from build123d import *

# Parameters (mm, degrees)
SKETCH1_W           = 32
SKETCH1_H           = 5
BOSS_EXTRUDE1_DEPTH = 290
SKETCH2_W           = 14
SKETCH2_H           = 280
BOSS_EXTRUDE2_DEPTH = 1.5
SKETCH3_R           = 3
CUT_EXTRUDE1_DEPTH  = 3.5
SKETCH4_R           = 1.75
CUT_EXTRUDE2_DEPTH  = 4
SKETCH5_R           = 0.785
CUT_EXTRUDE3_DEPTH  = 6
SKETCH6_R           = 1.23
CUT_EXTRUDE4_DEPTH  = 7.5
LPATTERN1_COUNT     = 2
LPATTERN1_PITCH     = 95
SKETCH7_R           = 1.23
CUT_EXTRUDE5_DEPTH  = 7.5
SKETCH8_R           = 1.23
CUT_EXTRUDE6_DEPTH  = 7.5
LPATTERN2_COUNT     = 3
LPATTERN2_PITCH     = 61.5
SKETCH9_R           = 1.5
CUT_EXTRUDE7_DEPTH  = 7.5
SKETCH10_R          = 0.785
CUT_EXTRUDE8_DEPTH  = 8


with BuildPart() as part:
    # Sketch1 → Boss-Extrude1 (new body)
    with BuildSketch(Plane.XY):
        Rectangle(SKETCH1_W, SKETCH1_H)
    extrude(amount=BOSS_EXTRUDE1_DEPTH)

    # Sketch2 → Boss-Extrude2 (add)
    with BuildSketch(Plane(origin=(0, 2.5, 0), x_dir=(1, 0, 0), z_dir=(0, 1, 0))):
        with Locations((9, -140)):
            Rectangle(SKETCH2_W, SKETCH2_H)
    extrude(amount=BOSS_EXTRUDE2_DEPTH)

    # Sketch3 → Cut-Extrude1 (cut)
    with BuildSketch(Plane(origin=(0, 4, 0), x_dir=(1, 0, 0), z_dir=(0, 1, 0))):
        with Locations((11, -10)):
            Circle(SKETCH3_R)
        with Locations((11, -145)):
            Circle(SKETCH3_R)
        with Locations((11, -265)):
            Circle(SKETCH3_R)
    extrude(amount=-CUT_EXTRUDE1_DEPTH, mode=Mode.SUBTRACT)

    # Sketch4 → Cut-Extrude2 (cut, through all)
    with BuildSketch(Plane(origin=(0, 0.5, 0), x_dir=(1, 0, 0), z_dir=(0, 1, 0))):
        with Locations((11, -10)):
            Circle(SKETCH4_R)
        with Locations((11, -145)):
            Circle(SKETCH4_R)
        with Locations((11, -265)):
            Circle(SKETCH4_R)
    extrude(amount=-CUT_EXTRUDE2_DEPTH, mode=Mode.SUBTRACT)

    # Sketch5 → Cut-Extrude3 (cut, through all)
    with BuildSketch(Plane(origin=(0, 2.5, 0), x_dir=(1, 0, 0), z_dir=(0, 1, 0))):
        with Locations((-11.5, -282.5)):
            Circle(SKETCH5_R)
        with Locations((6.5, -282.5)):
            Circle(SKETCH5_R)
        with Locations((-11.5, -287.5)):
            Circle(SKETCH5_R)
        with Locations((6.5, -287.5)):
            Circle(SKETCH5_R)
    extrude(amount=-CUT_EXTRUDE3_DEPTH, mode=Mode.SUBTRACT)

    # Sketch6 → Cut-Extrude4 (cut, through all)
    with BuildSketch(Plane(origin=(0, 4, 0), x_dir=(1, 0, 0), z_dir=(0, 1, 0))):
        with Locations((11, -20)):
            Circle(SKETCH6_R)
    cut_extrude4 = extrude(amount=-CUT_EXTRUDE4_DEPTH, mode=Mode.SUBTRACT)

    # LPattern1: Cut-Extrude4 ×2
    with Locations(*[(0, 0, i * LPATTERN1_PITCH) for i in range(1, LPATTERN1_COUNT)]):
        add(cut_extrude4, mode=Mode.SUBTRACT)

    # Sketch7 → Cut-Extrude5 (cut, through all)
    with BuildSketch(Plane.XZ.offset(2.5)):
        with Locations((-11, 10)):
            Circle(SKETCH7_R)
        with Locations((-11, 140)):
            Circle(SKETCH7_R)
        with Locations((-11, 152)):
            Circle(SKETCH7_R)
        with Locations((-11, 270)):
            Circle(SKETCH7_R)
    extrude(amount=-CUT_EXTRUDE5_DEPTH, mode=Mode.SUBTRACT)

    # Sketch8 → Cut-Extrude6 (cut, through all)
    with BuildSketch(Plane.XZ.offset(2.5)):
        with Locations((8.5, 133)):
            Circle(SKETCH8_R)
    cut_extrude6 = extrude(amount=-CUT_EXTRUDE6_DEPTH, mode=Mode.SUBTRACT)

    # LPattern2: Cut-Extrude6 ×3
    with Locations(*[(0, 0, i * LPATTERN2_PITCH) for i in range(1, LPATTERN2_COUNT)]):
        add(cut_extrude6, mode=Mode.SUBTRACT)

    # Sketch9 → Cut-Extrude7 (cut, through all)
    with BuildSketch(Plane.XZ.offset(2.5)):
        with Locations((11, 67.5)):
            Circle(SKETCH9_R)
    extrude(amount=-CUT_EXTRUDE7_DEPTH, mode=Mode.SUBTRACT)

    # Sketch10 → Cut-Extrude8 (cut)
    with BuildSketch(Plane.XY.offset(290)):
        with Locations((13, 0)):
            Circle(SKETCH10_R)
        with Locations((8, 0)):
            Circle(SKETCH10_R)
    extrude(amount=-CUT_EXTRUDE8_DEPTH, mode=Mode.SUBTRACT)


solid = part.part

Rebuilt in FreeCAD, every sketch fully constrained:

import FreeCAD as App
import Part
import Sketcher

V = App.Vector


def add_polygon(sketch, points):
    """Adds a closed chain of lines whose ends are joined by coincident constraints."""
    first, n = sketch.GeometryCount, len(points)
    for a, b in zip(points, points[1:] + points[:1]):
        sketch.addGeometry(Part.LineSegment(App.Vector(*a, 0), App.Vector(*b, 0)), False)
    for i in range(n):
        sketch.addConstraint(Sketcher.Constraint("Coincident", first + i, 2, first + (i + 1) % n, 1))

doc = App.newDocument("Part")
body = doc.addObject("PartDesign::Body", "Body")

sketch1 = body.newObject("Sketcher::SketchObject", "Sketch")
sketch1.AttachmentSupport = (doc.getObject("XY_Plane"), [""])
sketch1.MapMode = "FlatFace"
add_polygon(sketch1, [(-16, 2), (-16, -2), (16, -2), (16, 2)])
sketch1.addConstraint([
    Sketcher.Constraint("Vertical", 0),
    Sketcher.Constraint("Horizontal", 1),
    Sketcher.Constraint("Vertical", 2),
    Sketcher.Constraint("Horizontal", 3),
    Sketcher.Constraint("Symmetric", 0, 2, 2, 2, -1, 1),
    Sketcher.Constraint("DistanceX", 1, 1, 1, 2, 32.0),
    Sketcher.Constraint("DistanceY", 0, 2, 0, 1, 5.0),
])
pad1 = body.newObject("PartDesign::Pad", "Pad")
pad1.Profile = sketch1
pad1.Length = 290

sketch2 = body.newObject("Sketcher::SketchObject", "Sketch001")
sketch2.AttachmentSupport = (doc.getObject("XZ_Plane"), [""])
sketch2.MapMode = "FlatFace"
sketch2.AttachmentOffset = App.Placement(V(0, 0, -2.5), App.Rotation())
add_polygon(sketch2, [(2, 0), (2, 280), (16, 280), (16, 0)])
sketch2.addConstraint([
    Sketcher.Constraint("Vertical", 0),
    Sketcher.Constraint("Horizontal", 1),
    Sketcher.Constraint("Vertical", 2),
    Sketcher.Constraint("Horizontal", 3),
    Sketcher.Constraint("PointOnObject", 2, 2, -1),
    Sketcher.Constraint("DistanceX", 1, 1, 1, 2, 14.0),
    Sketcher.Constraint("DistanceY", 0, 1, 0, 2, 280.0),
    Sketcher.Constraint("DistanceX", -1, 1, 0, 2, 2.0),
])
pad2 = body.newObject("PartDesign::Pad", "Pad001")
pad2.Profile = sketch2
pad2.Length = 1.5
pad2.Reversed = True

sketch3 = body.newObject("Sketcher::SketchObject", "Sketch002")
sketch3.AttachmentSupport = (doc.getObject("XZ_Plane"), [""])
sketch3.MapMode = "FlatFace"
sketch3.AttachmentOffset = App.Placement(V(0, 0, -4), App.Rotation())
sketch3.addGeometry([
    Part.Circle(V(11, 10, 0), V(0, 0, 1), 3),
    Part.Circle(V(11, 145, 0), V(0, 0, 1), 3),
    Part.Circle(V(11, 265, 0), V(0, 0, 1), 3),
], False)
sketch3.addConstraint([
    Sketcher.Constraint("Equal", 0, 1),
    Sketcher.Constraint("Equal", 1, 2),
    Sketcher.Constraint("Vertical", 0, 3, 1, 3),
    Sketcher.Constraint("Vertical", 1, 3, 2, 3),
    Sketcher.Constraint("Diameter", 0, 6.0),
    Sketcher.Constraint("DistanceX", -1, 1, 0, 3, 11.0),
    Sketcher.Constraint("DistanceY", -1, 1, 0, 3, 10.0),
    Sketcher.Constraint("DistanceY", -1, 1, 1, 3, 145.0),
    Sketcher.Constraint("DistanceY", -1, 1, 2, 3, 265.0),
])
pocket1 = body.newObject("PartDesign::Pocket", "Pocket")
pocket1.Profile = sketch3
pocket1.Length = 3.5
pocket1.Reversed = True

sketch4 = body.newObject("Sketcher::SketchObject", "Sketch003")
sketch4.AttachmentSupport = (doc.getObject("XZ_Plane"), [""])
sketch4.MapMode = "FlatFace"
sketch4.AttachmentOffset = App.Placement(V(0, 0, -0.5), App.Rotation())
sketch4.addGeometry([
    Part.Circle(V(11, 10, 0), V(0, 0, 1), 1.8),
    Part.Circle(V(11, 145, 0), V(0, 0, 1), 1.8),
    Part.Circle(V(11, 265, 0), V(0, 0, 1), 1.8),
], False)
sketch4.addConstraint([
    Sketcher.Constraint("Equal", 0, 1),
    Sketcher.Constraint("Equal", 1, 2),
    Sketcher.Constraint("Vertical", 0, 3, 1, 3),
    Sketcher.Constraint("Vertical", 1, 3, 2, 3),
    Sketcher.Constraint("Diameter", 0, 3.5),
    Sketcher.Constraint("DistanceX", -1, 1, 0, 3, 11.0),
    Sketcher.Constraint("DistanceY", -1, 1, 0, 3, 10.0),
    Sketcher.Constraint("DistanceY", -1, 1, 1, 3, 145.0),
    Sketcher.Constraint("DistanceY", -1, 1, 2, 3, 265.0),
])
pocket2 = body.newObject("PartDesign::Pocket", "Pocket001")
pocket2.Profile = sketch4
pocket2.Type = "ThroughAll"
pocket2.Reversed = True

sketch5 = body.newObject("Sketcher::SketchObject", "Sketch004")
sketch5.AttachmentSupport = (doc.getObject("XZ_Plane"), [""])
sketch5.MapMode = "FlatFace"
sketch5.AttachmentOffset = App.Placement(V(0, 0, -2.5), App.Rotation())
sketch5.addGeometry([
    Part.Circle(V(-11.5, 282.5, 0), V(0, 0, 1), 0.8),
    Part.Circle(V(6.5, 282.5, 0), V(0, 0, 1), 0.8),
    Part.Circle(V(-11.5, 287.5, 0), V(0, 0, 1), 0.8),
    Part.Circle(V(6.5, 287.5, 0), V(0, 0, 1), 0.8),
], False)
sketch5.addConstraint([
    Sketcher.Constraint("Equal", 0, 1),
    Sketcher.Constraint("Equal", 1, 2),
    Sketcher.Constraint("Equal", 2, 3),
    Sketcher.Constraint("Horizontal", 0, 3, 1, 3),
    Sketcher.Constraint("Horizontal", 2, 3, 3, 3),
    Sketcher.Constraint("Vertical", 0, 3, 2, 3),
    Sketcher.Constraint("Vertical", 1, 3, 3, 3),
    Sketcher.Constraint("Diameter", 0, 1.57),
    Sketcher.Constraint("DistanceX", 0, 3, 1, 3, 18.0),
    Sketcher.Constraint("DistanceY", 0, 3, 2, 3, 5.0),
    Sketcher.Constraint("DistanceX", 0, 3, -1, 1, 11.5),
    Sketcher.Constraint("DistanceY", -1, 1, 0, 3, 282.5),
])
pocket3 = body.newObject("PartDesign::Pocket", "Pocket002")
pocket3.Profile = sketch5
pocket3.Type = "ThroughAll"
pocket3.Reversed = True

sketch6 = body.newObject("Sketcher::SketchObject", "Sketch005")
sketch6.AttachmentSupport = (doc.getObject("XZ_Plane"), [""])
sketch6.MapMode = "FlatFace"
sketch6.AttachmentOffset = App.Placement(V(0, 0, -4), App.Rotation())
sketch6.addGeometry(Part.Circle(V(11, 20, 0), V(0, 0, 1), 1.2), False)
sketch6.addConstraint([
    Sketcher.Constraint("Diameter", 0, 2.46),
    Sketcher.Constraint("DistanceX", -1, 1, 0, 3, 11.0),
    Sketcher.Constraint("DistanceY", -1, 1, 0, 3, 20.0),
])
pocket4 = body.newObject("PartDesign::Pocket", "Pocket003")
pocket4.Profile = sketch6
pocket4.Type = "ThroughAll"
pocket4.Reversed = True
doc.recompute()

linearpattern = body.newObject("PartDesign::LinearPattern", "LinearPattern")
linearpattern.Originals = [pocket4]
linearpattern.Direction = (doc.getObject("Z_Axis"), [""])
linearpattern.Mode = "offset"
linearpattern.Offset = 95
linearpattern.Occurrences = 2
body.Tip = linearpattern

sketch7 = body.newObject("Sketcher::SketchObject", "Sketch006")
sketch7.AttachmentSupport = (doc.getObject("XZ_Plane"), [""])
sketch7.MapMode = "FlatFace"
sketch7.AttachmentOffset = App.Placement(V(0, 0, 2.5), App.Rotation())
sketch7.addGeometry([
    Part.Circle(V(-11, 10, 0), V(0, 0, 1), 1.2),
    Part.Circle(V(-11, 140, 0), V(0, 0, 1), 1.2),
    Part.Circle(V(-11, 152, 0), V(0, 0, 1), 1.2),
    Part.Circle(V(-11, 270, 0), V(0, 0, 1), 1.2),
], False)
sketch7.addConstraint([
    Sketcher.Constraint("Equal", 0, 1),
    Sketcher.Constraint("Equal", 1, 2),
    Sketcher.Constraint("Equal", 2, 3),
    Sketcher.Constraint("Vertical", 0, 3, 1, 3),
    Sketcher.Constraint("Vertical", 1, 3, 2, 3),
    Sketcher.Constraint("Vertical", 2, 3, 3, 3),
    Sketcher.Constraint("Diameter", 0, 2.46),
    Sketcher.Constraint("DistanceX", 0, 3, -1, 1, 11.0),
    Sketcher.Constraint("DistanceY", -1, 1, 0, 3, 10.0),
    Sketcher.Constraint("DistanceY", -1, 1, 1, 3, 140.0),
    Sketcher.Constraint("DistanceY", -1, 1, 2, 3, 152.0),
    Sketcher.Constraint("DistanceY", -1, 1, 3, 3, 270.0),
])
pocket5 = body.newObject("PartDesign::Pocket", "Pocket004")
pocket5.Profile = sketch7
pocket5.Type = "ThroughAll"

sketch8 = body.newObject("Sketcher::SketchObject", "Sketch007")
sketch8.AttachmentSupport = (doc.getObject("XZ_Plane"), [""])
sketch8.MapMode = "FlatFace"
sketch8.AttachmentOffset = App.Placement(V(0, 0, 2.5), App.Rotation())
sketch8.addGeometry(Part.Circle(V(8.5, 133, 0), V(0, 0, 1), 1.2), False)
sketch8.addConstraint([
    Sketcher.Constraint("Diameter", 0, 2.46),
    Sketcher.Constraint("DistanceY", -1, 1, 0, 3, 133.0),
    Sketcher.Constraint("DistanceX", -1, 1, 0, 3, 8.5),
])
pocket6 = body.newObject("PartDesign::Pocket", "Pocket005")
pocket6.Profile = sketch8
pocket6.Type = "ThroughAll"
doc.recompute()

linearpattern2 = body.newObject("PartDesign::LinearPattern", "LinearPattern001")
linearpattern2.Originals = [pocket6]
linearpattern2.Direction = (doc.getObject("Z_Axis"), [""])
linearpattern2.Mode = "offset"
linearpattern2.Offset = 61.5
linearpattern2.Occurrences = 3
body.Tip = linearpattern2

sketch9 = body.newObject("Sketcher::SketchObject", "Sketch008")
sketch9.AttachmentSupport = (doc.getObject("XZ_Plane"), [""])
sketch9.MapMode = "FlatFace"
sketch9.AttachmentOffset = App.Placement(V(0, 0, 2.5), App.Rotation())
sketch9.addGeometry(Part.Circle(V(11, 67.5, 0), V(0, 0, 1), 1.5), False)
sketch9.addConstraint([
    Sketcher.Constraint("Diameter", 0, 3.0),
    Sketcher.Constraint("DistanceX", -1, 1, 0, 3, 11.0),
    Sketcher.Constraint("DistanceY", -1, 1, 0, 3, 67.5),
])
pocket7 = body.newObject("PartDesign::Pocket", "Pocket006")
pocket7.Profile = sketch9
pocket7.Type = "ThroughAll"

sketch10 = body.newObject("Sketcher::SketchObject", "Sketch009")
sketch10.AttachmentSupport = (doc.getObject("XY_Plane"), [""])
sketch10.MapMode = "FlatFace"
sketch10.AttachmentOffset = App.Placement(V(0, 0, 290), App.Rotation())
sketch10.addGeometry([
    Part.Circle(V(13, 0, 0), V(0, 0, 1), 0.8),
    Part.Circle(V(8, 0, 0), V(0, 0, 1), 0.8),
], False)
sketch10.addConstraint([
    Sketcher.Constraint("Equal", 0, 1),
    Sketcher.Constraint("PointOnObject", 0, 3, -1),
    Sketcher.Constraint("PointOnObject", 1, 3, -1),
    Sketcher.Constraint("Diameter", 0, 1.57),
    Sketcher.Constraint("DistanceX", -1, 1, 0, 3, 13.0),
    Sketcher.Constraint("DistanceX", -1, 1, 1, 3, 8.0),
])
pocket8 = body.newObject("PartDesign::Pocket", "Pocket007")
pocket8.Profile = sketch10
pocket8.Length = 8

doc.recompute()
